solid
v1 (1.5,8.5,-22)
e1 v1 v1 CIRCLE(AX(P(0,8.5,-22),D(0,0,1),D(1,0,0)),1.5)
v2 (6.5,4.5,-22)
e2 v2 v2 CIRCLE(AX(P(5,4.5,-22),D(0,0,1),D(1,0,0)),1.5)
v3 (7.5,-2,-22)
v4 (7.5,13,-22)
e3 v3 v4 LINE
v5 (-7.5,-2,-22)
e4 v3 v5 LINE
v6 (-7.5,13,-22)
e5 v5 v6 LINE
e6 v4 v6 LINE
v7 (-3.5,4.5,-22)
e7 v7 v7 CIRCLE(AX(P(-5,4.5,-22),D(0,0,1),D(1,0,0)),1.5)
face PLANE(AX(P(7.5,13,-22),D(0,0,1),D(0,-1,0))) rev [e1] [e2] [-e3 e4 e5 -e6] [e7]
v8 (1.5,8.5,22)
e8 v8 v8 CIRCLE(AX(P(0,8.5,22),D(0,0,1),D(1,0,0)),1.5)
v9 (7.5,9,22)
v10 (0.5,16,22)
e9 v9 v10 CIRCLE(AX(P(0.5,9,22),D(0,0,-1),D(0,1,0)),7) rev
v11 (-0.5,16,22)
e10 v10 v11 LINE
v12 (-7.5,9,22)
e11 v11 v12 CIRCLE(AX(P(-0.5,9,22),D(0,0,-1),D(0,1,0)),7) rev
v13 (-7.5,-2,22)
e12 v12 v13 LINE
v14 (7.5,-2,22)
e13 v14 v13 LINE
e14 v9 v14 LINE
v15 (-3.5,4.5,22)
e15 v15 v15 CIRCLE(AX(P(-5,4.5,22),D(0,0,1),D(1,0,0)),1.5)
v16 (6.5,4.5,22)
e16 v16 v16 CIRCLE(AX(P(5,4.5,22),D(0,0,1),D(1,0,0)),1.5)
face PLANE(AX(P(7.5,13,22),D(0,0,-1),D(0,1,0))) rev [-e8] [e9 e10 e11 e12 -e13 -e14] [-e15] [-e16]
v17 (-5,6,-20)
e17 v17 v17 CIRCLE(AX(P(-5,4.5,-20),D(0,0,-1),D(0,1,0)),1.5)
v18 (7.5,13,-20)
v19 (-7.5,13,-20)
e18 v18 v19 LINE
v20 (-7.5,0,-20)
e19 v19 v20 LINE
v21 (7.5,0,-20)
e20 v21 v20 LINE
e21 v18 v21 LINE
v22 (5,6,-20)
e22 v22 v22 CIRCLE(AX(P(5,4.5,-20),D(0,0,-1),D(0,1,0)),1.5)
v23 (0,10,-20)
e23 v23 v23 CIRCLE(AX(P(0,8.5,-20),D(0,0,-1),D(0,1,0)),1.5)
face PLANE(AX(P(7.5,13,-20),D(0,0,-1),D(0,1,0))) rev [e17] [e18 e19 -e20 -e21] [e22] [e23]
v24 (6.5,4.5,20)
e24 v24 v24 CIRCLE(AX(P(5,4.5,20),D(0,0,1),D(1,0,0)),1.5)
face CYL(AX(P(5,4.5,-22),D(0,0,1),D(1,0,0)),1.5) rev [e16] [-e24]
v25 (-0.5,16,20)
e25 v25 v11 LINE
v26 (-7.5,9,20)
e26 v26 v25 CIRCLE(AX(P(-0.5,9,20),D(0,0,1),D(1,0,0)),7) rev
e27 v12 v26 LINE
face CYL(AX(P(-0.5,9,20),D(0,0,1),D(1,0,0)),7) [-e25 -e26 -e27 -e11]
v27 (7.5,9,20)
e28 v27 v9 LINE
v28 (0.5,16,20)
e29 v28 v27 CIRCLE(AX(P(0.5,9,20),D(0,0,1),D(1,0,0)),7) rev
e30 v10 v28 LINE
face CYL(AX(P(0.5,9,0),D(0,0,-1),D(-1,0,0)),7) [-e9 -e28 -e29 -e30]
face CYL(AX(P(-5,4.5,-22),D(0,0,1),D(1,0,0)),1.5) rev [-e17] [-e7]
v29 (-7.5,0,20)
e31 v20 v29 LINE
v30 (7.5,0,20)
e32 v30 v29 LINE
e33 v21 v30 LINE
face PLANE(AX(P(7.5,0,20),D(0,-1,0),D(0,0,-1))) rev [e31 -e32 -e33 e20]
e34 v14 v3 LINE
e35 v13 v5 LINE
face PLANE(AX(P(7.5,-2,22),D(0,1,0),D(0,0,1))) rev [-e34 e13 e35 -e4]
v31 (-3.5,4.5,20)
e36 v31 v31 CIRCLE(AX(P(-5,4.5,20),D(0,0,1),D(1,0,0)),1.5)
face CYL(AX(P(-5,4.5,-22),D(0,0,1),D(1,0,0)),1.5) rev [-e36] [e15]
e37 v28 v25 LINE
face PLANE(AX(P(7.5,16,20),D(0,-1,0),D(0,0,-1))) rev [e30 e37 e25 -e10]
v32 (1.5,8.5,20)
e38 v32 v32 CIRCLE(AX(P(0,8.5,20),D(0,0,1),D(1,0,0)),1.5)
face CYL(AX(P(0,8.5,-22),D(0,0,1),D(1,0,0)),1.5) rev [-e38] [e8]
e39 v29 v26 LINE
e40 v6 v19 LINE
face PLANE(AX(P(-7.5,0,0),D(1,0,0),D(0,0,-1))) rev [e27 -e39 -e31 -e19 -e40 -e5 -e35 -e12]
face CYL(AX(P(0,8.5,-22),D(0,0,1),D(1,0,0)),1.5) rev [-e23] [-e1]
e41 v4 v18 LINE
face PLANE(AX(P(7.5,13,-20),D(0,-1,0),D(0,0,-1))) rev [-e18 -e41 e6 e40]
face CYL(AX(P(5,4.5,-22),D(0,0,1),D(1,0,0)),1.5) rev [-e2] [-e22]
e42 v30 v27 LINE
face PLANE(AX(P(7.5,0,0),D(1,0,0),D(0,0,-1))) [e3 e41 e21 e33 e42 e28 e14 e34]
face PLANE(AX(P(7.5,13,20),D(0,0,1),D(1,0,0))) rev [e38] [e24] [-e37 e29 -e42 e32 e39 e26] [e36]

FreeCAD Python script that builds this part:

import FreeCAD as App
import Part
import Sketcher

V = App.Vector


def edges_at(feature, points):
    """Names of the edges that pass closest to the given points."""
    edges = feature.Shape.Edges
    near = lambda p: min(range(len(edges)), key=lambda i: edges[i].distToShape(Part.Vertex(*p))[0])
    return sorted({f"Edge{near(p) + 1}" for p in points})

doc = App.newDocument("Part")
body = doc.addObject("PartDesign::Body", "Body")

sketch1 = body.newObject("Sketcher::SketchObject", "Sketch")
sketch1.AttachmentSupport = (doc.getObject("YZ_Plane"), [""])
sketch1.MapMode = "FlatFace"
sketch1.addGeometry(Part.LineSegment(V(-2, 22, 0), V(-2, -22, 0)), False)
sketch1.addGeometry(Part.LineSegment(V(-2, -22, 0), V(13, -22, 0)), False)
sketch1.addGeometry(Part.LineSegment(V(13, -22, 0), V(13, -20, 0)), False)
sketch1.addGeometry(Part.LineSegment(V(13, -20, 0), V(0, -20, 0)), False)
sketch1.addGeometry(Part.LineSegment(V(0, -20, 0), V(0, 20, 0)), False)
sketch1.addGeometry(Part.LineSegment(V(0, 20, 0), V(16, 20, 0)), False)
sketch1.addGeometry(Part.LineSegment(V(16, 20, 0), V(16, 22, 0)), False)
sketch1.addGeometry(Part.LineSegment(V(16, 22, 0), V(-2, 22, 0)), False)
sketch1.addConstraint(Sketcher.Constraint("Coincident", 0, 2, 1, 1))
sketch1.addConstraint(Sketcher.Constraint("Coincident", 1, 2, 2, 1))
sketch1.addConstraint(Sketcher.Constraint("Coincident", 2, 2, 3, 1))
sketch1.addConstraint(Sketcher.Constraint("Coincident", 3, 2, 4, 1))
sketch1.addConstraint(Sketcher.Constraint("Coincident", 4, 2, 5, 1))
sketch1.addConstraint(Sketcher.Constraint("Coincident", 5, 2, 6, 1))
sketch1.addConstraint(Sketcher.Constraint("Coincident", 6, 2, 7, 1))
sketch1.addConstraint(Sketcher.Constraint("Coincident", 7, 2, 0, 1))
sketch1.addConstraint(Sketcher.Constraint("Vertical", 0))
sketch1.addConstraint(Sketcher.Constraint("Horizontal", 1))
sketch1.addConstraint(Sketcher.Constraint("Vertical", 2))
sketch1.addConstraint(Sketcher.Constraint("Horizontal", 3))
sketch1.addConstraint(Sketcher.Constraint("Vertical", 4))
sketch1.addConstraint(Sketcher.Constraint("Horizontal", 5))
sketch1.addConstraint(Sketcher.Constraint("Vertical", 6))
sketch1.addConstraint(Sketcher.Constraint("Horizontal", 7))
sketch1.addConstraint(Sketcher.Constraint("Symmetric", 3, 2, 4, 2, -1, 1))
sketch1.addConstraint(Sketcher.Constraint("Equal", 2, 6))
sketch1.addConstraint(Sketcher.Constraint("DistanceX", 1, 1, 1, 2, 15.0))
sketch1.addConstraint(Sketcher.Constraint("DistanceX", 3, 2, 3, 1, 13.0))
sketch1.addConstraint(Sketcher.Constraint("DistanceX", 5, 1, 5, 2, 16.0))
sketch1.addConstraint(Sketcher.Constraint("DistanceY", 0, 2, 0, 1, 44.0))
sketch1.addConstraint(Sketcher.Constraint("DistanceY", 2, 1, 2, 2, 2.0))
pad1 = body.newObject("PartDesign::Pad", "Pad")
pad1.Profile = sketch1
pad1.Length = 15
pad1.Midplane = True

sketch2 = body.newObject("Sketcher::SketchObject", "Sketch001")
sketch2.AttachmentSupport = (doc.getObject("XY_Plane"), [""])
sketch2.MapMode = "FlatFace"
sketch2.addGeometry(Part.Circle(V(0, 8.5, 0), V(0, 0, 1), 1.5), False)
sketch2.addGeometry(Part.Circle(V(5, 4.5, 0), V(0, 0, 1), 1.5), False)
sketch2.addGeometry(Part.Circle(V(-5, 4.5, 0), V(0, 0, 1), 1.5), False)
sketch2.addConstraint(Sketcher.Constraint("Equal", 0, 1))
sketch2.addConstraint(Sketcher.Constraint("Equal", 1, 2))
sketch2.addConstraint(Sketcher.Constraint("Symmetric", 1, 3, 2, 3, -2))
sketch2.addConstraint(Sketcher.Constraint("PointOnObject", 0, 3, -2))
sketch2.addConstraint(Sketcher.Constraint("Diameter", 0, 3.0))
sketch2.addConstraint(Sketcher.Constraint("DistanceX", -1, 1, 1, 3, 5.0))
sketch2.addConstraint(Sketcher.Constraint("DistanceY", 1, 3, 0, 3, 4.0))
sketch2.addConstraint(Sketcher.Constraint("DistanceY", -1, 1, 0, 3, 8.5))
pocket1 = body.newObject("PartDesign::Pocket", "Pocket")
pocket1.Profile = sketch2
pocket1.Type = "ThroughAll"
pocket1.Midplane = True
doc.recompute()

fillet = body.newObject("PartDesign::Fillet", "Fillet")
fillet.Base = (pocket1, edges_at(pocket1, [(-7.5, 16, 21), (7.5, 16, 21)]))
fillet.Radius = 7

doc.recompute()
